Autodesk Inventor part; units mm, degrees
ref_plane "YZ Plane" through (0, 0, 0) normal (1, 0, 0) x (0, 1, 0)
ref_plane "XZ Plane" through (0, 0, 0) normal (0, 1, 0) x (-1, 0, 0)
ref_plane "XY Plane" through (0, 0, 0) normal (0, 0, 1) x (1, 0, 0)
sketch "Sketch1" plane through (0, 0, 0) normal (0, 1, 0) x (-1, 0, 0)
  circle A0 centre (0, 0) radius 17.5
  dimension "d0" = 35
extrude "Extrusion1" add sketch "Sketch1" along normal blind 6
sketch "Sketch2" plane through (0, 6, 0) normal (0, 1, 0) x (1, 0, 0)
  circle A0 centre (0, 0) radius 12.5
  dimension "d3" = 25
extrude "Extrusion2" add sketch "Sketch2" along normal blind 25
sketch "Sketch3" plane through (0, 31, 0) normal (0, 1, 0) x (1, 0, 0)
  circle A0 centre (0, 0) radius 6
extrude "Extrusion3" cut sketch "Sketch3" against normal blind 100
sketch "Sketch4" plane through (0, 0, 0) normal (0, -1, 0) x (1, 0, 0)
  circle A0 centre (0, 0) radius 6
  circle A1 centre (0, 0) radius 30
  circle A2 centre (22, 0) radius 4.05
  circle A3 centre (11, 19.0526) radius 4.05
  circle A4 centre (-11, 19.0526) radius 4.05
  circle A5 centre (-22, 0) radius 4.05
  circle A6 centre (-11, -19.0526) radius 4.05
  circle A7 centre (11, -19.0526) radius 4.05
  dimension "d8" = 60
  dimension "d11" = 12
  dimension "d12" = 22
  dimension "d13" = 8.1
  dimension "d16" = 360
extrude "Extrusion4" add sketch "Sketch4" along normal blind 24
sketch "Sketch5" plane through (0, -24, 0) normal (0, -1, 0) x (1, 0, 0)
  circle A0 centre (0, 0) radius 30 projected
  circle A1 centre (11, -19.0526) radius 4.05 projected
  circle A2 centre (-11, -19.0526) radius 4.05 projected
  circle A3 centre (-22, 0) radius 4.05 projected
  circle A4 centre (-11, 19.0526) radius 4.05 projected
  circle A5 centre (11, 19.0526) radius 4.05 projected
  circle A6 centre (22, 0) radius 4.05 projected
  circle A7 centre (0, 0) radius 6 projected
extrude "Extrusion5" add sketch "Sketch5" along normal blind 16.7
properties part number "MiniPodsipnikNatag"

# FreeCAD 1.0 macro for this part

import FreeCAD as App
import Part
import Sketcher
from FreeCAD import Vector

doc = App.newDocument("Part")
body = doc.addObject("PartDesign::Body", "Body")

sketch1 = body.newObject("Sketcher::SketchObject", "Sketch")
sketch1.AttachmentSupport = (doc.getObject("XZ_Plane"), [""])
sketch1.MapMode = "FlatFace"
sketch1.addGeometry(Part.Circle(Vector(0, 0, 0), Vector(0, 0, 1), 18), False)
sketch1.addConstraint([
    Sketcher.Constraint("Coincident", 0, 3, -1, 1),
    Sketcher.Constraint("Diameter", 0, 35.0),
])
pad1 = body.newObject("PartDesign::Pad", "Pad")
pad1.Profile = sketch1
pad1.Length = 6
pad1.Reversed = True

sketch2 = body.newObject("Sketcher::SketchObject", "Sketch001")
sketch2.AttachmentSupport = (doc.getObject("XZ_Plane"), [""])
sketch2.MapMode = "FlatFace"
sketch2.AttachmentOffset = App.Placement(Vector(0, 0, -6), App.Rotation())
sketch2.addGeometry(Part.Circle(Vector(0, 0, 0), Vector(0, 0, 1), 12), False)
sketch2.addConstraint([
    Sketcher.Constraint("Coincident", 0, 3, -1, 1),
    Sketcher.Constraint("Diameter", 0, 25.0),
])
pad2 = body.newObject("PartDesign::Pad", "Pad001")
pad2.Profile = sketch2
pad2.Length = 25
pad2.Reversed = True

sketch3 = body.newObject("Sketcher::SketchObject", "Sketch002")
sketch3.AttachmentSupport = (doc.getObject("XZ_Plane"), [""])
sketch3.MapMode = "FlatFace"
sketch3.AttachmentOffset = App.Placement(Vector(0, 0, -31), App.Rotation())
sketch3.addGeometry(Part.Circle(Vector(0, 0, 0), Vector(0, 0, 1), 6), False)
sketch3.addConstraint([
    Sketcher.Constraint("Coincident", 0, 3, -1, 1),
    Sketcher.Constraint("Diameter", 0, 12.0),
])
pocket1 = body.newObject("PartDesign::Pocket", "Pocket")
pocket1.Profile = sketch3
pocket1.Length = 100
pocket1.Reversed = True

sketch4 = body.newObject("Sketcher::SketchObject", "Sketch003")
sketch4.AttachmentSupport = (doc.getObject("XZ_Plane"), [""])
sketch4.MapMode = "FlatFace"
sketch4.addGeometry([
    Part.Circle(Vector(0, 0, 0), Vector(0, 0, 1), 30),
    Part.Circle(Vector(-11, -19.1, 0), Vector(0, 0, 1), 4),
    Part.Circle(Vector(11, -19.1, 0), Vector(0, 0, 1), 4),
    Part.Circle(Vector(-22, 0, 0), Vector(0, 0, 1), 4),
    Part.Circle(Vector(-11, 19.1, 0), Vector(0, 0, 1), 4),
    Part.Circle(Vector(0, 0, 0), Vector(0, 0, 1), 6),
    Part.Circle(Vector(22, 0, 0), Vector(0, 0, 1), 4),
    Part.Circle(Vector(11, 19.1, 0), Vector(0, 0, 1), 4),
], False)
sketch4.addConstraint([
    Sketcher.Constraint("Coincident", 0, 3, -1, 1),
    Sketcher.Constraint("Coincident", 5, 3, -1, 1),
    Sketcher.Constraint("Equal", 1, 2),
    Sketcher.Constraint("Equal", 2, 3),
    Sketcher.Constraint("Equal", 3, 4),
    Sketcher.Constraint("Equal", 4, 6),
    Sketcher.Constraint("Equal", 6, 7),
    Sketcher.Constraint("Symmetric", 2, 3, 4, 3, -1, 1),
    Sketcher.Constraint("Symmetric", 3, 3, 6, 3, -1, 1),
    Sketcher.Constraint("Symmetric", 1, 3, 7, 3, -1, 1),
    Sketcher.Constraint("Symmetric", 1, 3, 2, 3, -2),
    Sketcher.Constraint("PointOnObject", 3, 3, -1),
    Sketcher.Constraint("Diameter", 0, 60.0),
    Sketcher.Constraint("Diameter", 5, 12.0),
    Sketcher.Constraint("Diameter", 1, 8.1),
    Sketcher.Constraint("DistanceX", 3, 3, -1, 1, 22.0),
    Sketcher.Constraint("DistanceX", 1, 3, 2, 3, 22.0),
    Sketcher.Constraint("DistanceY", 1, 3, -1, 1, 19.0526),
])
pad3 = body.newObject("PartDesign::Pad", "Pad002")
pad3.Profile = sketch4
pad3.Length = 24

sketch5 = body.newObject("Sketcher::SketchObject", "Sketch004")
sketch5.AttachmentSupport = (doc.getObject("XZ_Plane"), [""])
sketch5.MapMode = "FlatFace"
sketch5.AttachmentOffset = App.Placement(Vector(0, 0, 24), App.Rotation())
sketch5.addGeometry([
    Part.Circle(Vector(0, 0, 0), Vector(0, 0, 1), 30),
    Part.Circle(Vector(-11, -19.1, 0), Vector(0, 0, 1), 4),
    Part.Circle(Vector(11, -19.1, 0), Vector(0, 0, 1), 4),
    Part.Circle(Vector(-22, 0, 0), Vector(0, 0, 1), 4),
    Part.Circle(Vector(-11, 19.1, 0), Vector(0, 0, 1), 4),
    Part.Circle(Vector(0, 0, 0), Vector(0, 0, 1), 6),
    Part.Circle(Vector(22, 0, 0), Vector(0, 0, 1), 4),
    Part.Circle(Vector(11, 19.1, 0), Vector(0, 0, 1), 4),
], False)
sketch5.addConstraint([
    Sketcher.Constraint("Coincident", 0, 3, -1, 1),
    Sketcher.Constraint("Coincident", 5, 3, -1, 1),
    Sketcher.Constraint("Equal", 1, 2),
    Sketcher.Constraint("Equal", 2, 3),
    Sketcher.Constraint("Equal", 3, 4),
    Sketcher.Constraint("Equal", 4, 6),
    Sketcher.Constraint("Equal", 6, 7),
    Sketcher.Constraint("Symmetric", 2, 3, 4, 3, -1, 1),
    Sketcher.Constraint("Symmetric", 3, 3, 6, 3, -1, 1),
    Sketcher.Constraint("Symmetric", 1, 3, 7, 3, -1, 1),
    Sketcher.Constraint("Symmetric", 1, 3, 2, 3, -2),
    Sketcher.Constraint("PointOnObject", 3, 3, -1),
    Sketcher.Constraint("Diameter", 0, 60.0),
    Sketcher.Constraint("Diameter", 5, 12.0),
    Sketcher.Constraint("Diameter", 1, 8.1),
    Sketcher.Constraint("DistanceX", 1, 3, -1, 1, 11.0),
    Sketcher.Constraint("DistanceX", 3, 3, -1, 1, 22.0),
    Sketcher.Constraint("DistanceY", 1, 3, -1, 1, 19.0526),
])
pad4 = body.newObject("PartDesign::Pad", "Pad003")
pad4.Profile = sketch5
pad4.Length = 16.7

doc.recompute()
